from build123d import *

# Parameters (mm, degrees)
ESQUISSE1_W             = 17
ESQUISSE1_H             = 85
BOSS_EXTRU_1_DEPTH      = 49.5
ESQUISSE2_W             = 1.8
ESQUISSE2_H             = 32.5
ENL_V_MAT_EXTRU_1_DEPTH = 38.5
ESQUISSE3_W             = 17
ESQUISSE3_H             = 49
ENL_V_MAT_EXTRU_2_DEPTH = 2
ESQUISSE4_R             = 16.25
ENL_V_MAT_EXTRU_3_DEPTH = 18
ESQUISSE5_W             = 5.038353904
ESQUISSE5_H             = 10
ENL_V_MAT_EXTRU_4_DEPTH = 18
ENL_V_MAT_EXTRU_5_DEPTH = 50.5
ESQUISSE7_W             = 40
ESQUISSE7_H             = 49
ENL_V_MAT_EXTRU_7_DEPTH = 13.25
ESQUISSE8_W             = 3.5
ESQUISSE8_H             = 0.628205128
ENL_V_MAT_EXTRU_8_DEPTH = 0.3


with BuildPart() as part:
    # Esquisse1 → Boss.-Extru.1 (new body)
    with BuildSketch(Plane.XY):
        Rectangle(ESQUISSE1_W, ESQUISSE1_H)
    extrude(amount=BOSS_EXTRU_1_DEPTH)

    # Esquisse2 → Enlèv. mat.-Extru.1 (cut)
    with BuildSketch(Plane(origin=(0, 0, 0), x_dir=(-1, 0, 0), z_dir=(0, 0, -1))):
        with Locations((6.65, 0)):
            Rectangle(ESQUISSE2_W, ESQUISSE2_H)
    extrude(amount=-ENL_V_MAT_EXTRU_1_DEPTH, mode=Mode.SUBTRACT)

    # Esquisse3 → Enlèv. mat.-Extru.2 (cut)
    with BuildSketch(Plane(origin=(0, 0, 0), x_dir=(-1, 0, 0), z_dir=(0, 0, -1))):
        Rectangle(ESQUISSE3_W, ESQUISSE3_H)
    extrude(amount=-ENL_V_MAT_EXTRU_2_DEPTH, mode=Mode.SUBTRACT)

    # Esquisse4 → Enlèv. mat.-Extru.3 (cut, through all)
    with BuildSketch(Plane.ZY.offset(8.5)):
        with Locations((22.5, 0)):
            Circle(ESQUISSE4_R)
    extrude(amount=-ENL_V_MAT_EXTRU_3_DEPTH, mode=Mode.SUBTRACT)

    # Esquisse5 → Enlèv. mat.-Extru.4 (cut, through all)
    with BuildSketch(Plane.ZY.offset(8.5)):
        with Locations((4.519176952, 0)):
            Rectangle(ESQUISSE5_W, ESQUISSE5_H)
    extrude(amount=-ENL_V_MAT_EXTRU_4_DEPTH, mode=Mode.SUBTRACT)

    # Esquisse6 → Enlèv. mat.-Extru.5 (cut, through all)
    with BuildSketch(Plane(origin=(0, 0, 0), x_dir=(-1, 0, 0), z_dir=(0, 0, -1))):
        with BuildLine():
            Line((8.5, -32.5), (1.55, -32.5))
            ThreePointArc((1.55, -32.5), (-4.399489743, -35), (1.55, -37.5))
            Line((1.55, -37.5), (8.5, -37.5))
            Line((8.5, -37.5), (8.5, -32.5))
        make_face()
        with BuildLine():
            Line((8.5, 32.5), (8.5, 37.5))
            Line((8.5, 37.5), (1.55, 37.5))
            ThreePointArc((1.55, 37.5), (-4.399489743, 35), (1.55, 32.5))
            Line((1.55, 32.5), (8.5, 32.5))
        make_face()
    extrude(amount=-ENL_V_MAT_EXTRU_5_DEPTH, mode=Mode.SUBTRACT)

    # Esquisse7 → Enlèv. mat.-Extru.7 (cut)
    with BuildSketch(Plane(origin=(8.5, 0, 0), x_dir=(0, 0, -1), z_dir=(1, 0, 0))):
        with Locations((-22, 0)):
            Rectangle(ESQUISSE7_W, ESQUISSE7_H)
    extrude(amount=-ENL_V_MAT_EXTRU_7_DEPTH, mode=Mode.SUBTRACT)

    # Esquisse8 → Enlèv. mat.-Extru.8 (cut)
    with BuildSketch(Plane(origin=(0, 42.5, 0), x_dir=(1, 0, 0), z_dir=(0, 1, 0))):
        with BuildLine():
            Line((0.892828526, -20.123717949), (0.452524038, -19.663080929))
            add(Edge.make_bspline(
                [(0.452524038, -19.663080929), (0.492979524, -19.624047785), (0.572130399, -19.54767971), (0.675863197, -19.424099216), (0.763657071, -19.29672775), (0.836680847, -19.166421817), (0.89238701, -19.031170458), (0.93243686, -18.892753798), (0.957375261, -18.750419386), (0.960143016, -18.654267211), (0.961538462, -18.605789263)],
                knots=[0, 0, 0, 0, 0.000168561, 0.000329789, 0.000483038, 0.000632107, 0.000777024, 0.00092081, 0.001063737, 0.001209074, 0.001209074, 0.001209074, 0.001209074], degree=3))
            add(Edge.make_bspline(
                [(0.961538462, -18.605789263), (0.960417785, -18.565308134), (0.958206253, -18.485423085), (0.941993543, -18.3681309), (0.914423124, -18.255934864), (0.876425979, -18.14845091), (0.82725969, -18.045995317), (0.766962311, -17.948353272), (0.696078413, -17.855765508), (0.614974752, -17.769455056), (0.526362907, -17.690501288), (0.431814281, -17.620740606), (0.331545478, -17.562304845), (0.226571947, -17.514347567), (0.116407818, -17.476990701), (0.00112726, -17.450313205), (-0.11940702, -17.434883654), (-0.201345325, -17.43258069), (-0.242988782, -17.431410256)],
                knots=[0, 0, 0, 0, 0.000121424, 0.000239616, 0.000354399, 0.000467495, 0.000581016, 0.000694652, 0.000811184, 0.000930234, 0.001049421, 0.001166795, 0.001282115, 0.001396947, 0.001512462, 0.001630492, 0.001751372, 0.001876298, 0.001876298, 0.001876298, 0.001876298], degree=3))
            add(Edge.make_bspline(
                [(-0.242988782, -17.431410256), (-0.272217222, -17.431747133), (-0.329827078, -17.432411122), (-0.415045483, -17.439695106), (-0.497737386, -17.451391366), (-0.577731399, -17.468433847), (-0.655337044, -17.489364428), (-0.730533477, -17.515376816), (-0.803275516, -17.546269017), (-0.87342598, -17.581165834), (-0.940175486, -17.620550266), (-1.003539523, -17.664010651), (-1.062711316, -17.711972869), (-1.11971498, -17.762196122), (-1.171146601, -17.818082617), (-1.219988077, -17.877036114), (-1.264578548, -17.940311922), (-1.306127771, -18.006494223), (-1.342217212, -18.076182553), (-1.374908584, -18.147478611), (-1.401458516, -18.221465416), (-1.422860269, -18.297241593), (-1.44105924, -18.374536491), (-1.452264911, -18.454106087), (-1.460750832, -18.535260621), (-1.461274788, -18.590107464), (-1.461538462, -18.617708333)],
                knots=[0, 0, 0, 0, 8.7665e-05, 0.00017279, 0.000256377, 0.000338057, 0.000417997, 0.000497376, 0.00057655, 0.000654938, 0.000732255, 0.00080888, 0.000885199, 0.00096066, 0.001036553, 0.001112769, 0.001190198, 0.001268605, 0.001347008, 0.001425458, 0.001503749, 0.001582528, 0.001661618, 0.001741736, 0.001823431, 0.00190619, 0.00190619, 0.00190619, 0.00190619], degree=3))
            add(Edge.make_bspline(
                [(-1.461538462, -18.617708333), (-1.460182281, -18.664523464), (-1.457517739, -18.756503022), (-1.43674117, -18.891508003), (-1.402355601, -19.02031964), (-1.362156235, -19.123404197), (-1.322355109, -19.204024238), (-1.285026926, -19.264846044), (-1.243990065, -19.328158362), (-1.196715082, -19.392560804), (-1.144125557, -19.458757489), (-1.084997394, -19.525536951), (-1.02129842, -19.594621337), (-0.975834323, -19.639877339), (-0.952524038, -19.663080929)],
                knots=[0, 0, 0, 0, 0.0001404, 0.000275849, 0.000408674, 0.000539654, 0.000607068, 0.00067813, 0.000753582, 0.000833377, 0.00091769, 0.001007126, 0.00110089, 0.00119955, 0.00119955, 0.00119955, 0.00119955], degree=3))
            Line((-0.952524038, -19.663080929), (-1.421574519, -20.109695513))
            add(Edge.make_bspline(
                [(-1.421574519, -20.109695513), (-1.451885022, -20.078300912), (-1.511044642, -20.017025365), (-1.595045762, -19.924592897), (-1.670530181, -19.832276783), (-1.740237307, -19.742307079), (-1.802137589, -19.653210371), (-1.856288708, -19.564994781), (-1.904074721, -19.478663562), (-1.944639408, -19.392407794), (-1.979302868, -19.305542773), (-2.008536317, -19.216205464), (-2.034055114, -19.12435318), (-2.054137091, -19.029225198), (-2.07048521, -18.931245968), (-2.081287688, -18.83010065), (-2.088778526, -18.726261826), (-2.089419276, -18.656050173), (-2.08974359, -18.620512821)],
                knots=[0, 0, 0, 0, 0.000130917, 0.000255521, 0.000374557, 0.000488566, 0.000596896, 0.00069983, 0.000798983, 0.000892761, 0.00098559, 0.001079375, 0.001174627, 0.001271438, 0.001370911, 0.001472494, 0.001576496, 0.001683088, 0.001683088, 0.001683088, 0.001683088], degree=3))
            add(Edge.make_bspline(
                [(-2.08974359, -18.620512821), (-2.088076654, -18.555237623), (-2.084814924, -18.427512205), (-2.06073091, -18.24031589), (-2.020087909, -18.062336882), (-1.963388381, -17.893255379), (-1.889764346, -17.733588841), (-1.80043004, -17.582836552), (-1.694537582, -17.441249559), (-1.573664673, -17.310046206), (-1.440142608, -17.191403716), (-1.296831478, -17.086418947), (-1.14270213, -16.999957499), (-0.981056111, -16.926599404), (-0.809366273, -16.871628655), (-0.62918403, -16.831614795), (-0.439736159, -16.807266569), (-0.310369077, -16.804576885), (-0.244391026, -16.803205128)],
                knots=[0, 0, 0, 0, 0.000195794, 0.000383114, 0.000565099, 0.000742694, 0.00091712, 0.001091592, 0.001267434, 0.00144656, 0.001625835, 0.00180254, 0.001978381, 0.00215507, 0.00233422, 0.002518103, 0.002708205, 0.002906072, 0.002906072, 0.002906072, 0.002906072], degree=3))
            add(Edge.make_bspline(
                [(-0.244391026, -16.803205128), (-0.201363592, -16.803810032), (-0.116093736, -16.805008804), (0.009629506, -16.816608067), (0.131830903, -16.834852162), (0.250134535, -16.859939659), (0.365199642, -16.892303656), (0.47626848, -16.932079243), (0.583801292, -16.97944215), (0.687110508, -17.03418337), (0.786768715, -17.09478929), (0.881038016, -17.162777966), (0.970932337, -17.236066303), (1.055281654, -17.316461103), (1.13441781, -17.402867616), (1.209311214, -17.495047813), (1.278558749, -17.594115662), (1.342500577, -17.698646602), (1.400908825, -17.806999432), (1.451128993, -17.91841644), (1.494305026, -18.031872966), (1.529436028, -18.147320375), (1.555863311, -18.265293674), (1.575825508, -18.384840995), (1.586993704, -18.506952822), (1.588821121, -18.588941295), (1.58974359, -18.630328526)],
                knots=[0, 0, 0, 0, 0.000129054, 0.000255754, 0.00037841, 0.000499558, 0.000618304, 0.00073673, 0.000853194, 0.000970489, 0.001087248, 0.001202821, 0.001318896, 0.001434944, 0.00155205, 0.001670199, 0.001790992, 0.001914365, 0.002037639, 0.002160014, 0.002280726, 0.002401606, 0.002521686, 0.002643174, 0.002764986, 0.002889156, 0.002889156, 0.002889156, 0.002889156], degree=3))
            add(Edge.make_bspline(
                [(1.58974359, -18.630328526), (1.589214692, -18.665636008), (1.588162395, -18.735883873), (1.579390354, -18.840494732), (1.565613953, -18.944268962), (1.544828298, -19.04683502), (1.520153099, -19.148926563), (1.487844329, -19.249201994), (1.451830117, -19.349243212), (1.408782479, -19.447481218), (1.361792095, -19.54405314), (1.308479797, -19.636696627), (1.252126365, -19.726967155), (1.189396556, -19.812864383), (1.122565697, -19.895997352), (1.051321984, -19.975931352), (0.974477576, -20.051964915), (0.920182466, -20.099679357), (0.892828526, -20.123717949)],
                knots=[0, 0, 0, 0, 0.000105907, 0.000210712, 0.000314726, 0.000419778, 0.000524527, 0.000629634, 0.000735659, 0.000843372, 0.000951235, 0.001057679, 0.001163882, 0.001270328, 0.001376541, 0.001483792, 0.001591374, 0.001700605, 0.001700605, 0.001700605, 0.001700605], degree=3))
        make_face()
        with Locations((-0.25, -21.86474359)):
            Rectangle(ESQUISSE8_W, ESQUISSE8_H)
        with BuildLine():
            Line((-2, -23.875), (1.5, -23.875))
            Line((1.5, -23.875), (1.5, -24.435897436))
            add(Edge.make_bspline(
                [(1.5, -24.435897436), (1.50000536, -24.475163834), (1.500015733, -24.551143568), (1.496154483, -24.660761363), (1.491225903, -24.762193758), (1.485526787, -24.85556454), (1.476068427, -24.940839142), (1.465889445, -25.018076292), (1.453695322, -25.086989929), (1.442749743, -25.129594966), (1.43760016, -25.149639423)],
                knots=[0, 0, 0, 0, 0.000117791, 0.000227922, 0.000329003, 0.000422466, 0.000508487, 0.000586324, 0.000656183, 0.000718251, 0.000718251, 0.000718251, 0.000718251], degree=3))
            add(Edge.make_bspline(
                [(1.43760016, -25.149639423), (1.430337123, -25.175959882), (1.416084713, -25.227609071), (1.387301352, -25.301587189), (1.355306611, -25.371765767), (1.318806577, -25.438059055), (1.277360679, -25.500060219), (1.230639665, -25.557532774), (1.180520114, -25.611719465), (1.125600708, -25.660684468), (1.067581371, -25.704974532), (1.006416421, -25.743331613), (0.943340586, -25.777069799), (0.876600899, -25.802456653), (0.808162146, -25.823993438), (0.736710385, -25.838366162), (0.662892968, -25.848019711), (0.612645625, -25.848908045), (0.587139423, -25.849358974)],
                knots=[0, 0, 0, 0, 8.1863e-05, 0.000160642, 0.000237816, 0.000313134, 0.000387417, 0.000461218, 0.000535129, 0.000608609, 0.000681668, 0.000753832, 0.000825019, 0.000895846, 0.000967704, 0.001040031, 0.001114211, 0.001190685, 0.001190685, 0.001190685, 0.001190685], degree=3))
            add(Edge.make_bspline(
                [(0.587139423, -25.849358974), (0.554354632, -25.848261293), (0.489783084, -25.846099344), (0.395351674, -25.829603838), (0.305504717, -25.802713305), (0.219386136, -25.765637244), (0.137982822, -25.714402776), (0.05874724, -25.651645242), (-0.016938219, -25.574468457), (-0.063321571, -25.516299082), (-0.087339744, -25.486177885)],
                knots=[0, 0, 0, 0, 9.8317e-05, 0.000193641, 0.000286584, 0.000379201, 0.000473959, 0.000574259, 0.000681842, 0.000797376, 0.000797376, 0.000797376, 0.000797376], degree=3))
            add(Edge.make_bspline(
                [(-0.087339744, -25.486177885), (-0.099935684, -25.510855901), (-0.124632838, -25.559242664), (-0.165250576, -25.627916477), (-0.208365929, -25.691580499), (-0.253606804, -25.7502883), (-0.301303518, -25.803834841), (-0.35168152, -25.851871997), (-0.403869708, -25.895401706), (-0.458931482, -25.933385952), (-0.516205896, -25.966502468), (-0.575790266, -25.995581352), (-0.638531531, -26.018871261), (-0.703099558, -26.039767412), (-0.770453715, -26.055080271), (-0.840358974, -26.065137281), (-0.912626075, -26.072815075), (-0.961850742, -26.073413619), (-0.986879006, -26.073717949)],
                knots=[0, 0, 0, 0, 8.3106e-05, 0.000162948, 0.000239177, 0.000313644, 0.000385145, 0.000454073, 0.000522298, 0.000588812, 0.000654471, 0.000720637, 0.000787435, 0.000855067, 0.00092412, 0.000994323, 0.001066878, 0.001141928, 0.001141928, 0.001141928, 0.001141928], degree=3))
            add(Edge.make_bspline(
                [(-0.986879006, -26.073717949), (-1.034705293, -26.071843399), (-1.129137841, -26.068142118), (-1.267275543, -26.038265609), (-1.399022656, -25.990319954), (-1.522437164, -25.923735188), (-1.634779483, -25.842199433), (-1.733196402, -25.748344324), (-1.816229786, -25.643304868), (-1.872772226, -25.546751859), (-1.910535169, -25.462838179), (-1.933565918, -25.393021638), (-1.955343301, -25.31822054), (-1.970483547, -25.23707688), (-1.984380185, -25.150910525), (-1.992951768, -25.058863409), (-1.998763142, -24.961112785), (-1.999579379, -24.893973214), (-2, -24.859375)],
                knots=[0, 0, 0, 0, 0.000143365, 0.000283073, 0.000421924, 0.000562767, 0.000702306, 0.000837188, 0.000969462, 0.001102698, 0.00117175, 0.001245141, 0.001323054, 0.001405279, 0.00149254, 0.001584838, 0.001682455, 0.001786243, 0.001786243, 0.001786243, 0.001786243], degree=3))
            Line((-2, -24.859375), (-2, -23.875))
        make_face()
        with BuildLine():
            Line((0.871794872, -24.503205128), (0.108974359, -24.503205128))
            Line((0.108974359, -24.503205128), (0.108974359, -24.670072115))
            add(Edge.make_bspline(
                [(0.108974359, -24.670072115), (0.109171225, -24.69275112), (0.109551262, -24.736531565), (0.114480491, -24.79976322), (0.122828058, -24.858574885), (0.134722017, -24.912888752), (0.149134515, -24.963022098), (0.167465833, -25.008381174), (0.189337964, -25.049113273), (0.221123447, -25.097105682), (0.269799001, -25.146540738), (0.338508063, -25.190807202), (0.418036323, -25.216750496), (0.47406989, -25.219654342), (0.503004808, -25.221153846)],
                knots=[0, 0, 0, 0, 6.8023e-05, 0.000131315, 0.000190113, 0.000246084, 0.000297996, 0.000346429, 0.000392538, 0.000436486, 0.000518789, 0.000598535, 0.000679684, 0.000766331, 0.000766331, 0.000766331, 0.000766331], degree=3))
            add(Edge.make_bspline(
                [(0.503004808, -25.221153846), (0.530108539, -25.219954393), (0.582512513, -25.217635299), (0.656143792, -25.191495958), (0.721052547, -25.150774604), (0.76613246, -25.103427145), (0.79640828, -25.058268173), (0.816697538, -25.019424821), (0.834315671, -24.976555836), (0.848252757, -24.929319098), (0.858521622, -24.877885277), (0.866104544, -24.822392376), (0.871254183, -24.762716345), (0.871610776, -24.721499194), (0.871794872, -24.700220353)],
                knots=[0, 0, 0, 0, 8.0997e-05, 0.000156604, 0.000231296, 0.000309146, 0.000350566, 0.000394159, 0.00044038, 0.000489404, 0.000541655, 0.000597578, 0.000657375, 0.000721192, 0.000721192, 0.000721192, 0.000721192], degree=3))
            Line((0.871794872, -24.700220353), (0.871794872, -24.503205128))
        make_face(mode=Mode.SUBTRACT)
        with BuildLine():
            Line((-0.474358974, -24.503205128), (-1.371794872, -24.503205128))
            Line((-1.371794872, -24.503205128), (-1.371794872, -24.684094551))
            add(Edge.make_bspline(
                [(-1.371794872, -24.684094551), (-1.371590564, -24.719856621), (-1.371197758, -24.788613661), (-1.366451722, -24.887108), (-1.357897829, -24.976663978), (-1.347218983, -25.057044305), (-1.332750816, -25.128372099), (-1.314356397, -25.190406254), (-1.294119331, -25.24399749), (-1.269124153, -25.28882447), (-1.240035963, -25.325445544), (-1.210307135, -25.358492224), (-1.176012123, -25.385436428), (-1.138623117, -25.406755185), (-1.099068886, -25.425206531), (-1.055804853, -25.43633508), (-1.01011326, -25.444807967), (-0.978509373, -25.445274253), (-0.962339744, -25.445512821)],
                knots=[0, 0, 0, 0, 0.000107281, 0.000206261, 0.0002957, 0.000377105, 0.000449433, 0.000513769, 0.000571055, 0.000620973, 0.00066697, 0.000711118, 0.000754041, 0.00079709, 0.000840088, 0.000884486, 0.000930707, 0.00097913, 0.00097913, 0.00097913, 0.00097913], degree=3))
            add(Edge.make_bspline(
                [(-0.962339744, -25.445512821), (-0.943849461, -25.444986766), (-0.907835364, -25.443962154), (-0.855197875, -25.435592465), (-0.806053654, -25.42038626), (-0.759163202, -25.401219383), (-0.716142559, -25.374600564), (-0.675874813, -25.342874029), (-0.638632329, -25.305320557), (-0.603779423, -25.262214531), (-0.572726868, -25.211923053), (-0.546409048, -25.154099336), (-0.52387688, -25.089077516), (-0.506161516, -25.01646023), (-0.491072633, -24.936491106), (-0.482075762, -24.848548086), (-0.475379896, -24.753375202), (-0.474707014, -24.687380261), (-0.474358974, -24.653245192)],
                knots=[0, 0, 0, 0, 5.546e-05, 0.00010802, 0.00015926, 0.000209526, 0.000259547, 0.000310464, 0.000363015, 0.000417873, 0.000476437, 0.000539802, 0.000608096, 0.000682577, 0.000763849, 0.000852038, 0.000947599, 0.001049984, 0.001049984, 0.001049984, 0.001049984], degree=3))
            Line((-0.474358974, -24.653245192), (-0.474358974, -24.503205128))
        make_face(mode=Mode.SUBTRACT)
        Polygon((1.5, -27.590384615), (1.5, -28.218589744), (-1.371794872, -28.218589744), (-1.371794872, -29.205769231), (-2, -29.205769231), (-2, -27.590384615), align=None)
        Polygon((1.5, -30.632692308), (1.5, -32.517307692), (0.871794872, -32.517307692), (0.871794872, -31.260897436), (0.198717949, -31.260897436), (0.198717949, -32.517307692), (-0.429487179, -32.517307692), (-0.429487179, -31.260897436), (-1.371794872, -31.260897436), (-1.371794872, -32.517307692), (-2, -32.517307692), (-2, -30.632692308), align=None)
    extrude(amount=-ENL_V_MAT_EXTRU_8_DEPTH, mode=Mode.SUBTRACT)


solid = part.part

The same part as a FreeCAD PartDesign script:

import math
import FreeCAD as App
import Part
import Sketcher
from FreeCAD import Vector
Q = App.Units.Quantity


def add_polygon(sketch, points):
    """Adds a closed chain of lines whose ends are joined by coincident constraints."""
    first, n = sketch.GeometryCount, len(points)
    for a, b in zip(points, points[1:] + points[:1]):
        sketch.addGeometry(Part.LineSegment(App.Vector(*a, 0), App.Vector(*b, 0)), False)
    for i in range(n):
        sketch.addConstraint(Sketcher.Constraint("Coincident", first + i, 2, first + (i + 1) % n, 1))

doc = App.newDocument("Part")
params = doc.addObject("Spreadsheet::Sheet", "Params")
for row, (alias, value) in enumerate([
    ("sketch1_width", "17 mm"),
    ("sketch1_height", "85 mm"),
    ("pad1_length", "49.5 mm"),
    ("sketch2_width", "1.8 mm"),
    ("sketch2_height", "32.5 mm"),
    ("pocket1_length", "38.5 mm"),
    ("sketch3_width", "17 mm"),
    ("sketch3_height", "49 mm"),
    ("pocket2_length", "2 mm"),
    ("sketch4_diameter", "32.5 mm"),
    ("sketch5_width", "10 mm"),
    ("sketch6_radius", "3.5 mm"),
    ("sketch6_height", "5 mm"),
    ("sketch6_width", "6.95 mm"),
    ("sketch7_width", "49 mm"),
    ("sketch7_height", "40 mm"),
    ("pocket6_length", "13.25 mm"),
    ("sketch8_width", "3.5 mm"),
    ("sketch8_width2", "3.5 mm"),
    ("sketch8_width3", "3.5 mm"),
    ("pocket7_length", "0.3 mm"),
], start=1):
    params.set(f"A{row}", alias)
    params.set(f"B{row}", "=" + value)
    params.setAlias(f"B{row}", alias)

body = doc.addObject("PartDesign::Body", "Body")

sketch1 = doc.addObject("Sketcher::SketchObject", "Sketch")
body.addObject(sketch1)
sketch1.AttachmentSupport = (doc.XY_Plane, [""])
sketch1.MapMode = "FlatFace"
add_polygon(sketch1, [(-8, 42), (-8, -42), (8, -42), (8, 42)])
sketch1.addConstraint(Sketcher.Constraint("Vertical", 0))
sketch1.addConstraint(Sketcher.Constraint("Horizontal", 1))
sketch1.addConstraint(Sketcher.Constraint("Vertical", 2))
sketch1.addConstraint(Sketcher.Constraint("Horizontal", 3))
sketch1.addConstraint(Sketcher.Constraint("Symmetric", 0, 2, 2, 2, -1, 1))
sketch1.addConstraint(Sketcher.Constraint("DistanceX", 1, 1, 1, 2, Q("17 mm")))
sketch1.addConstraint(Sketcher.Constraint("DistanceY", 0, 2, 0, 1, Q("85 mm")))
sketch1.setExpression("Constraints[9]", "Params.sketch1_width")
sketch1.setExpression("Constraints[10]", "Params.sketch1_height")
pad1 = doc.addObject("PartDesign::Pad", "Pad")
body.addObject(pad1)
pad1.Profile = sketch1
pad1.setExpression("Length", "Params.pad1_length")

sketch2 = doc.addObject("Sketcher::SketchObject", "Sketch001")
body.addObject(sketch2)
sketch2.AttachmentSupport = (doc.XY_Plane, [""])
sketch2.MapMode = "FlatFace"
add_polygon(sketch2, [(-5.8, 16.2), (-5.8, -16.2), (-7.5, -16.2), (-7.5, 16.2)])
sketch2.addConstraint(Sketcher.Constraint("Vertical", 0))
sketch2.addConstraint(Sketcher.Constraint("Horizontal", 1))
sketch2.addConstraint(Sketcher.Constraint("Vertical", 2))
sketch2.addConstraint(Sketcher.Constraint("Horizontal", 3))
sketch2.addConstraint(Sketcher.Constraint("DistanceX", 1, 2, 1, 1, Q("1.8 mm")))
sketch2.addConstraint(Sketcher.Constraint("DistanceY", 0, 2, 0, 1, Q("32.5 mm")))
sketch2.addConstraint(Sketcher.Constraint("DistanceX", 0, 2, -1, 1, Q("5.75 mm")))
sketch2.addConstraint(Sketcher.Constraint("DistanceY", 0, 2, -1, 1, Q("16.25 mm")))
sketch2.setExpression("Constraints[8]", "Params.sketch2_width")
sketch2.setExpression("Constraints[9]", "Params.sketch2_height")
pocket1 = doc.addObject("PartDesign::Pocket", "Pocket")
body.addObject(pocket1)
pocket1.Profile = sketch2
pocket1.setExpression("Length", "Params.pocket1_length")
pocket1.Reversed = True

sketch3 = doc.addObject("Sketcher::SketchObject", "Sketch002")
body.addObject(sketch3)
sketch3.AttachmentSupport = (doc.XY_Plane, [""])
sketch3.MapMode = "FlatFace"
add_polygon(sketch3, [(8, 24), (8, -24), (-8, -24), (-8, 24)])
sketch3.addConstraint(Sketcher.Constraint("Vertical", 0))
sketch3.addConstraint(Sketcher.Constraint("Horizontal", 1))
sketch3.addConstraint(Sketcher.Constraint("Vertical", 2))
sketch3.addConstraint(Sketcher.Constraint("Horizontal", 3))
sketch3.addConstraint(Sketcher.Constraint("Symmetric", 0, 2, 2, 2, -1, 1))
sketch3.addConstraint(Sketcher.Constraint("DistanceX", 1, 2, 1, 1, Q("17 mm")))
sketch3.addConstraint(Sketcher.Constraint("DistanceY", 0, 2, 0, 1, Q("49 mm")))
sketch3.setExpression("Constraints[9]", "Params.sketch3_width")
sketch3.setExpression("Constraints[10]", "Params.sketch3_height")
pocket2 = doc.addObject("PartDesign::Pocket", "Pocket001")
body.addObject(pocket2)
pocket2.Profile = sketch3
pocket2.setExpression("Length", "Params.pocket2_length")
pocket2.Reversed = True

sketch4 = doc.addObject("Sketcher::SketchObject", "Sketch003")
body.addObject(sketch4)
sketch4.AttachmentSupport = (doc.YZ_Plane, [""])
sketch4.MapMode = "FlatFace"
sketch4.AttachmentOffset = App.Placement(Vector(0, 0, -8.5), App.Rotation())
sketch4.addGeometry(Part.Circle(Vector(0, 22, 0), Vector(0, 0, 1), 16), False)
sketch4.addConstraint(Sketcher.Constraint("PointOnObject", 0, 3, -2))
sketch4.addConstraint(Sketcher.Constraint("Diameter", 0, Q("32.5 mm")))
sketch4.addConstraint(Sketcher.Constraint("DistanceY", -1, 1, 0, 3, Q("22.5 mm")))
sketch4.setExpression("Constraints[1]", "Params.sketch4_diameter")
pocket3 = doc.addObject("PartDesign::Pocket", "Pocket002")
body.addObject(pocket3)
pocket3.Profile = sketch4
pocket3.Type = "ThroughAll"
pocket3.Reversed = True

sketch5 = doc.addObject("Sketcher::SketchObject", "Sketch004")
body.addObject(sketch5)
sketch5.AttachmentSupport = (doc.YZ_Plane, [""])
sketch5.MapMode = "FlatFace"
sketch5.AttachmentOffset = App.Placement(Vector(0, 0, -8.5), App.Rotation())
add_polygon(sketch5, [(5, 2), (-5, 2), (-5, 7), (5, 7)])
sketch5.addConstraint(Sketcher.Constraint("Horizontal", 0))
sketch5.addConstraint(Sketcher.Constraint("Vertical", 1))
sketch5.addConstraint(Sketcher.Constraint("Horizontal", 2))
sketch5.addConstraint(Sketcher.Constraint("Vertical", 3))
sketch5.addConstraint(Sketcher.Constraint("DistanceX", 0, 2, 0, 1, Q("10 mm")))
sketch5.addConstraint(Sketcher.Constraint("DistanceX", 0, 2, -1, 1, Q("5 mm")))
sketch5.addConstraint(Sketcher.Constraint("DistanceY", -1, 1, 0, 2, Q("2 mm")))
sketch5.addConstraint(Sketcher.Constraint("DistanceY", 1, 1, 1, 2, Q("5.038354 mm")))
sketch5.setExpression("Constraints[8]", "Params.sketch5_width")
pocket4 = doc.addObject("PartDesign::Pocket", "Pocket003")
body.addObject(pocket4)
pocket4.Profile = sketch5
pocket4.Type = "ThroughAll"
pocket4.Reversed = True

sketch6 = doc.addObject("Sketcher::SketchObject", "Sketch005")
body.addObject(sketch6)
sketch6.AttachmentSupport = (doc.XY_Plane, [""])
sketch6.MapMode = "FlatFace"
sketch6.addGeometry(Part.LineSegment(Vector(-8.5, -32.5, 0), Vector(-1.6, -32.5, 0)), False)
sketch6.addGeometry(Part.ArcOfCircle(Part.Circle(Vector(0.9, -35, 0), Vector(0, 0, 1), 3.5), math.radians(-134), math.radians(134)), False)
sketch6.addGeometry(Part.LineSegment(Vector(-1.6, -37.5, 0), Vector(-8.5, -37.5, 0)), False)
sketch6.addGeometry(Part.LineSegment(Vector(-8.5, -37.5, 0), Vector(-8.5, -32.5, 0)), False)
sketch6.addGeometry(Part.LineSegment(Vector(-8.5, 32.5, 0), Vector(-8.5, 37.5, 0)), False)
sketch6.addGeometry(Part.LineSegment(Vector(-8.5, 37.5, 0), Vector(-1.6, 37.5, 0)), False)
sketch6.addGeometry(Part.ArcOfCircle(Part.Circle(Vector(0.9, 35, 0), Vector(0, 0, 1), 3.5), math.radians(-134), math.radians(134)), False)
sketch6.addGeometry(Part.LineSegment(Vector(-1.6, 32.5, 0), Vector(-8.5, 32.5, 0)), False)
sketch6.addConstraint(Sketcher.Constraint("Coincident", 0, 2, 1, 2))
sketch6.addConstraint(Sketcher.Constraint("Coincident", 1, 1, 2, 1))
sketch6.addConstraint(Sketcher.Constraint("Coincident", 2, 2, 3, 1))
sketch6.addConstraint(Sketcher.Constraint("Coincident", 3, 2, 0, 1))
sketch6.addConstraint(Sketcher.Constraint("Coincident", 4, 2, 5, 1))
sketch6.addConstraint(Sketcher.Constraint("Coincident", 5, 2, 6, 2))
sketch6.addConstraint(Sketcher.Constraint("Coincident", 6, 1, 7, 1))
sketch6.addConstraint(Sketcher.Constraint("Coincident", 7, 2, 4, 1))
sketch6.addConstraint(Sketcher.Constraint("Horizontal", 0))
sketch6.addConstraint(Sketcher.Constraint("Horizontal", 2))
sketch6.addConstraint(Sketcher.Constraint("Vertical", 3))
sketch6.addConstraint(Sketcher.Constraint("Vertical", 4))
sketch6.addConstraint(Sketcher.Constraint("Horizontal", 5))
sketch6.addConstraint(Sketcher.Constraint("Horizontal", 7))
sketch6.addConstraint(Sketcher.Constraint("Equal", 1, 6))
sketch6.addConstraint(Sketcher.Constraint("Symmetric", 1, 3, 6, 3, -1))
sketch6.addConstraint(Sketcher.Constraint("Symmetric", 2, 2, 4, 2, -1))
sketch6.addConstraint(Sketcher.Constraint("Vertical", 0, 2, 1, 1))
sketch6.addConstraint(Sketcher.Constraint("Vertical", 5, 2, 6, 1))
sketch6.addConstraint(Sketcher.Constraint("Radius", 1, Q("3.5 mm")))
sketch6.addConstraint(Sketcher.Constraint("DistanceY", 3, 1, 3, 2, Q("5 mm")))
sketch6.addConstraint(Sketcher.Constraint("DistanceY", 1, 3, -1, 1, Q("35 mm")))
sketch6.addConstraint(Sketcher.Constraint("DistanceX", 0, 1, 0, 2, Q("6.95 mm")))
sketch6.addConstraint(Sketcher.Constraint("DistanceX", 2, 2, -1, 1, Q("8.5 mm")))
sketch6.setExpression("Constraints[19]", "Params.sketch6_radius")
sketch6.setExpression("Constraints[20]", "Params.sketch6_height")
sketch6.setExpression("Constraints[22]", "Params.sketch6_width")
pocket5 = doc.addObject("PartDesign::Pocket", "Pocket004")
body.addObject(pocket5)
pocket5.Profile = sketch6
pocket5.Type = "ThroughAll"
pocket5.Reversed = True

sketch7 = doc.addObject("Sketcher::SketchObject", "Sketch006")
body.addObject(sketch7)
sketch7.AttachmentSupport = (doc.YZ_Plane, [""])
sketch7.MapMode = "FlatFace"
sketch7.AttachmentOffset = App.Placement(Vector(0, 0, 8.5), App.Rotation())
add_polygon(sketch7, [(24, 42), (-24, 42), (-24, 2), (24, 2)])
sketch7.addConstraint(Sketcher.Constraint("Horizontal", 0))
sketch7.addConstraint(Sketcher.Constraint("Vertical", 1))
sketch7.addConstraint(Sketcher.Constraint("Horizontal", 2))
sketch7.addConstraint(Sketcher.Constraint("Vertical", 3))
sketch7.addConstraint(Sketcher.Constraint("DistanceX", 0, 2, 0, 1, Q("49 mm")))
sketch7.addConstraint(Sketcher.Constraint("DistanceY", 1, 2, 1, 1, Q("40 mm")))
sketch7.addConstraint(Sketcher.Constraint("DistanceY", -1, 1, 0, 2, Q("42 mm")))
sketch7.addConstraint(Sketcher.Constraint("DistanceX", 0, 2, -1, 1, Q("24.5 mm")))
sketch7.setExpression("Constraints[8]", "Params.sketch7_width")
sketch7.setExpression("Constraints[9]", "Params.sketch7_height")
pocket6 = doc.addObject("PartDesign::Pocket", "Pocket005")
body.addObject(pocket6)
pocket6.Profile = sketch7
pocket6.setExpression("Length", "Params.pocket6_length")

sketch8 = doc.addObject("Sketcher::SketchObject", "Sketch007")
body.addObject(sketch8)
sketch8.AttachmentSupport = (doc.XZ_Plane, [""])
sketch8.MapMode = "FlatFace"
sketch8.AttachmentOffset = App.Placement(Vector(0, 0, -42.5), App.Rotation())
sketch8.addGeometry(Part.LineSegment(Vector(0.452524, 19.663081, 0), Vector(0.892829, 20.123718, 0)), False)
sketch8.addGeometry(Part.BSplineCurve([Vector(1.589744, 18.630329, 0), Vector(1.589215, 18.665636, 0), Vector(1.588162, 18.735884, 0), Vector(1.57939, 18.840495, 0), Vector(1.565614, 18.944269, 0), Vector(1.544828, 19.046835, 0), Vector(1.520153, 19.148927, 0), Vector(1.487844, 19.249202, 0), Vector(1.45183, 19.349243, 0), Vector(1.408782, 19.447481, 0), Vector(1.361792, 19.544053, 0), Vector(1.30848, 19.636697, 0), Vector(1.252126, 19.726967, 0), Vector(1.189397, 19.812864, 0), Vector(1.122566, 19.895997, 0), Vector(1.051322, 19.975931, 0), Vector(0.974478, 20.051965, 0), Vector(0.920182, 20.099679, 0), Vector(0.892829, 20.123718, 0)], [4, 1, 1, 1, 1, 1, 1, 1, 1, 1, 1, 1, 1, 1, 1, 1, 4], [0, 0.000105907, 0.000210712, 0.000314726, 0.000419778, 0.000524527, 0.000629634, 0.000735659, 0.000843372, 0.000951235, 0.001057679, 0.001163882, 0.001270328, 0.001376541, 0.001483792, 0.001591374, 0.001700605], False, 3, [1, 1, 1, 1, 1, 1, 1, 1, 1, 1, 1, 1, 1, 1, 1, 1, 1, 1, 1], False), False)
sketch8.addGeometry(Part.BSplineCurve([Vector(-0.244391, 16.803205, 0), Vector(-0.201364, 16.80381, 0), Vector(-0.116094, 16.805009, 0), Vector(0.00963, 16.816608, 0), Vector(0.131831, 16.834852, 0), Vector(0.250135, 16.85994, 0), Vector(0.3652, 16.892304, 0), Vector(0.476268, 16.932079, 0), Vector(0.583801, 16.979442, 0), Vector(0.687111, 17.034183, 0), Vector(0.786769, 17.094789, 0), Vector(0.881038, 17.162778, 0), Vector(0.970932, 17.236066, 0), Vector(1.055282, 17.316461, 0), Vector(1.134418, 17.402868, 0), Vector(1.209311, 17.495048, 0), Vector(1.278559, 17.594116, 0), Vector(1.342501, 17.698647, 0), Vector(1.400909, 17.806999, 0), Vector(1.451129, 17.918416, 0), Vector(1.494305, 18.031873, 0), Vector(1.529436, 18.14732, 0), Vector(1.555863, 18.265294, 0), Vector(1.575826, 18.384841, 0), Vector(1.586994, 18.506953, 0), Vector(1.588821, 18.588941, 0), Vector(1.589744, 18.630329, 0)], [4, 1, 1, 1, 1, 1, 1, 1, 1, 1, 1, 1, 1, 1, 1, 1, 1, 1, 1, 1, 1, 1, 1, 1, 4], [0, 0.000129054, 0.000255754, 0.00037841, 0.000499558, 0.000618304, 0.00073673, 0.000853194, 0.000970489, 0.001087248, 0.001202821, 0.001318896, 0.001434944, 0.00155205, 0.001670199, 0.001790992, 0.001914365, 0.002037639, 0.002160014, 0.002280726, 0.002401606, 0.002521686, 0.002643174, 0.002764986, 0.002889156], False, 3, [1, 1, 1, 1, 1, 1, 1, 1, 1, 1, 1, 1, 1, 1, 1, 1, 1, 1, 1, 1, 1, 1, 1, 1, 1, 1, 1], False), False)
sketch8.addGeometry(Part.BSplineCurve([Vector(-2.089744, 18.620513, 0), Vector(-2.088077, 18.555238, 0), Vector(-2.084815, 18.427512, 0), Vector(-2.060731, 18.240316, 0), Vector(-2.020088, 18.062337, 0), Vector(-1.963388, 17.893255, 0), Vector(-1.889764, 17.733589, 0), Vector(-1.80043, 17.582837, 0), Vector(-1.694538, 17.44125, 0), Vector(-1.573665, 17.310046, 0), Vector(-1.440143, 17.191404, 0), Vector(-1.296831, 17.086419, 0), Vector(-1.142702, 16.999957, 0), Vector(-0.981056, 16.926599, 0), Vector(-0.809366, 16.871629, 0), Vector(-0.629184, 16.831615, 0), Vector(-0.439736, 16.807267, 0), Vector(-0.310369, 16.804577, 0), Vector(-0.244391, 16.803205, 0)], [4, 1, 1, 1, 1, 1, 1, 1, 1, 1, 1, 1, 1, 1, 1, 1, 4], [0, 0.000195794, 0.000383114, 0.000565099, 0.000742694, 0.00091712, 0.001091592, 0.001267434, 0.00144656, 0.001625835, 0.00180254, 0.001978381, 0.00215507, 0.00233422, 0.002518103, 0.002708205, 0.002906072], False, 3, [1, 1, 1, 1, 1, 1, 1, 1, 1, 1, 1, 1, 1, 1, 1, 1, 1, 1, 1], False), False)
sketch8.addGeometry(Part.BSplineCurve([Vector(-1.421575, 20.109696, 0), Vector(-1.451885, 20.078301, 0), Vector(-1.511045, 20.017025, 0), Vector(-1.595046, 19.924593, 0), Vector(-1.67053, 19.832277, 0), Vector(-1.740237, 19.742307, 0), Vector(-1.802138, 19.65321, 0), Vector(-1.856289, 19.564995, 0), Vector(-1.904075, 19.478664, 0), Vector(-1.944639, 19.392408, 0), Vector(-1.979303, 19.305543, 0), Vector(-2.008536, 19.216205, 0), Vector(-2.034055, 19.124353, 0), Vector(-2.054137, 19.029225, 0), Vector(-2.070485, 18.931246, 0), Vector(-2.081288, 18.830101, 0), Vector(-2.088779, 18.726262, 0), Vector(-2.089419, 18.65605, 0), Vector(-2.089744, 18.620513, 0)], [4, 1, 1, 1, 1, 1, 1, 1, 1, 1, 1, 1, 1, 1, 1, 1, 4], [0, 0.000130917, 0.000255521, 0.000374557, 0.000488566, 0.000596896, 0.00069983, 0.000798983, 0.000892761, 0.00098559, 0.001079375, 0.001174627, 0.001271438, 0.001370911, 0.001472494, 0.001576496, 0.001683088], False, 3, [1, 1, 1, 1, 1, 1, 1, 1, 1, 1, 1, 1, 1, 1, 1, 1, 1, 1, 1], False), False)
sketch8.addGeometry(Part.LineSegment(Vector(-1.421575, 20.109696, 0), Vector(-0.952524, 19.663081, 0)), False)
sketch8.addGeometry(Part.BSplineCurve([Vector(-1.461538, 18.617708, 0), Vector(-1.460182, 18.664523, 0), Vector(-1.457518, 18.756503, 0), Vector(-1.436741, 18.891508, 0), Vector(-1.402356, 19.02032, 0), Vector(-1.362156, 19.123404, 0), Vector(-1.322355, 19.204024, 0), Vector(-1.285027, 19.264846, 0), Vector(-1.24399, 19.328158, 0), Vector(-1.196715, 19.392561, 0), Vector(-1.144126, 19.458757, 0), Vector(-1.084997, 19.525537, 0), Vector(-1.021298, 19.594621, 0), Vector(-0.975834, 19.639877, 0), Vector(-0.952524, 19.663081, 0)], [4, 1, 1, 1, 1, 1, 1, 1, 1, 1, 1, 1, 4], [0, 0.0001404, 0.000275849, 0.000408674, 0.000539654, 0.000607068, 0.00067813, 0.000753582, 0.000833377, 0.00091769, 0.001007126, 0.00110089, 0.00119955], False, 3, [1, 1, 1, 1, 1, 1, 1, 1, 1, 1, 1, 1, 1, 1, 1], False), False)
sketch8.addGeometry(Part.BSplineCurve([Vector(-0.242989, 17.43141, 0), Vector(-0.272217, 17.431747, 0), Vector(-0.329827, 17.432411, 0), Vector(-0.415045, 17.439695, 0), Vector(-0.497737, 17.451391, 0), Vector(-0.577731, 17.468434, 0), Vector(-0.655337, 17.489364, 0), Vector(-0.730533, 17.515377, 0), Vector(-0.803276, 17.546269, 0), Vector(-0.873426, 17.581166, 0), Vector(-0.940175, 17.62055, 0), Vector(-1.00354, 17.664011, 0), Vector(-1.062711, 17.711973, 0), Vector(-1.119715, 17.762196, 0), Vector(-1.171147, 17.818083, 0), Vector(-1.219988, 17.877036, 0), Vector(-1.264579, 17.940312, 0), Vector(-1.306128, 18.006494, 0), Vector(-1.342217, 18.076183, 0), Vector(-1.374909, 18.147479, 0), Vector(-1.401459, 18.221465, 0), Vector(-1.42286, 18.297242, 0), Vector(-1.441059, 18.374536, 0), Vector(-1.452265, 18.454106, 0), Vector(-1.460751, 18.535261, 0), Vector(-1.461275, 18.590107, 0), Vector(-1.461538, 18.617708, 0)], [4, 1, 1, 1, 1, 1, 1, 1, 1, 1, 1, 1, 1, 1, 1, 1, 1, 1, 1, 1, 1, 1, 1, 1, 4], [0, 0.000087665, 0.00017279, 0.000256377, 0.000338057, 0.000417997, 0.000497376, 0.00057655, 0.000654938, 0.000732255, 0.00080888, 0.000885199, 0.00096066, 0.001036553, 0.001112769, 0.001190198, 0.001268605, 0.001347008, 0.001425458, 0.001503749, 0.001582528, 0.001661618, 0.001741736, 0.001823431, 0.00190619], False, 3, [1, 1, 1, 1, 1, 1, 1, 1, 1, 1, 1, 1, 1, 1, 1, 1, 1, 1, 1, 1, 1, 1, 1, 1, 1, 1, 1], False), False)
sketch8.addGeometry(Part.BSplineCurve([Vector(0.961538, 18.605789, 0), Vector(0.960418, 18.565308, 0), Vector(0.958206, 18.485423, 0), Vector(0.941994, 18.368131, 0), Vector(0.914423, 18.255935, 0), Vector(0.876426, 18.148451, 0), Vector(0.82726, 18.045995, 0), Vector(0.766962, 17.948353, 0), Vector(0.696078, 17.855766, 0), Vector(0.614975, 17.769455, 0), Vector(0.526363, 17.690501, 0), Vector(0.431814, 17.620741, 0), Vector(0.331545, 17.562305, 0), Vector(0.226572, 17.514348, 0), Vector(0.116408, 17.476991, 0), Vector(0.001127, 17.450313, 0), Vector(-0.119407, 17.434884, 0), Vector(-0.201345, 17.432581, 0), Vector(-0.242989, 17.43141, 0)], [4, 1, 1, 1, 1, 1, 1, 1, 1, 1, 1, 1, 1, 1, 1, 1, 4], [0, 0.000121424, 0.000239616, 0.000354399, 0.000467495, 0.000581016, 0.000694652, 0.000811184, 0.000930234, 0.001049421, 0.001166795, 0.001282115, 0.001396947, 0.001512462, 0.001630492, 0.001751372, 0.001876298], False, 3, [1, 1, 1, 1, 1, 1, 1, 1, 1, 1, 1, 1, 1, 1, 1, 1, 1, 1, 1], False), False)
sketch8.addGeometry(Part.BSplineCurve([Vector(0.452524, 19.663081, 0), Vector(0.49298, 19.624048, 0), Vector(0.57213, 19.54768, 0), Vector(0.675863, 19.424099, 0), Vector(0.763657, 19.296728, 0), Vector(0.836681, 19.166422, 0), Vector(0.892387, 19.03117, 0), Vector(0.932437, 18.892754, 0), Vector(0.957375, 18.750419, 0), Vector(0.960143, 18.654267, 0), Vector(0.961538, 18.605789, 0)], [4, 1, 1, 1, 1, 1, 1, 1, 4], [0, 0.000168561, 0.000329789, 0.000483038, 0.000632107, 0.000777024, 0.00092081, 0.001063737, 0.001209074], False, 3, [1, 1, 1, 1, 1, 1, 1, 1, 1, 1, 1], False), False)
add_polygon(sketch8, [(-2, 21.550641), (-2, 22.178846), (1.5, 22.178846), (1.5, 21.550641)])
sketch8.addGeometry(Part.LineSegment(Vector(1.5, 23.875, 0), Vector(-2, 23.875, 0)), False)
sketch8.addGeometry(Part.LineSegment(Vector(-2, 23.875, 0), Vector(-2, 24.859375, 0)), False)
sketch8.addGeometry(Part.BSplineCurve([Vector(-0.986879, 26.073718, 0), Vector(-1.034705, 26.071843, 0), Vector(-1.129138, 26.068142, 0), Vector(-1.267276, 26.038266, 0), Vector(-1.399023, 25.99032, 0), Vector(-1.522437, 25.923735, 0), Vector(-1.634779, 25.842199, 0), Vector(-1.733196, 25.748344, 0), Vector(-1.81623, 25.643305, 0), Vector(-1.872772, 25.546752, 0), Vector(-1.910535, 25.462838, 0), Vector(-1.933566, 25.393022, 0), Vector(-1.955343, 25.318221, 0), Vector(-1.970484, 25.237077, 0), Vector(-1.98438, 25.150911, 0), Vector(-1.992952, 25.058863, 0), Vector(-1.998763, 24.961113, 0), Vector(-1.999579, 24.893973, 0), Vector(-2, 24.859375, 0)], [4, 1, 1, 1, 1, 1, 1, 1, 1, 1, 1, 1, 1, 1, 1, 1, 4], [0, 0.000143365, 0.000283073, 0.000421924, 0.000562767, 0.000702306, 0.000837188, 0.000969462, 0.001102698, 0.00117175, 0.001245141, 0.001323054, 0.001405279, 0.00149254, 0.001584838, 0.001682455, 0.001786243], False, 3, [1, 1, 1, 1, 1, 1, 1, 1, 1, 1, 1, 1, 1, 1, 1, 1, 1, 1, 1], False), False)
sketch8.addGeometry(Part.BSplineCurve([Vector(-0.08734, 25.486178, 0), Vector(-0.099936, 25.510856, 0), Vector(-0.124633, 25.559243, 0), Vector(-0.165251, 25.627916, 0), Vector(-0.208366, 25.69158, 0), Vector(-0.253607, 25.750288, 0), Vector(-0.301304, 25.803835, 0), Vector(-0.351682, 25.851872, 0), Vector(-0.40387, 25.895402, 0), Vector(-0.458931, 25.933386, 0), Vector(-0.516206, 25.966502, 0), Vector(-0.57579, 25.995581, 0), Vector(-0.638532, 26.018871, 0), Vector(-0.7031, 26.039767, 0), Vector(-0.770454, 26.05508, 0), Vector(-0.840359, 26.065137, 0), Vector(-0.912626, 26.072815, 0), Vector(-0.961851, 26.073414, 0), Vector(-0.986879, 26.073718, 0)], [4, 1, 1, 1, 1, 1, 1, 1, 1, 1, 1, 1, 1, 1, 1, 1, 4], [0, 0.000083106, 0.000162948, 0.000239177, 0.000313644, 0.000385145, 0.000454073, 0.000522298, 0.000588812, 0.000654471, 0.000720637, 0.000787435, 0.000855067, 0.00092412, 0.000994323, 0.001066878, 0.001141928], False, 3, [1, 1, 1, 1, 1, 1, 1, 1, 1, 1, 1, 1, 1, 1, 1, 1, 1, 1, 1], False), False)
sketch8.addGeometry(Part.BSplineCurve([Vector(0.587139, 25.849359, 0), Vector(0.554355, 25.848261, 0), Vector(0.489783, 25.846099, 0), Vector(0.395352, 25.829604, 0), Vector(0.305505, 25.802713, 0), Vector(0.219386, 25.765637, 0), Vector(0.137983, 25.714403, 0), Vector(0.058747, 25.651645, 0), Vector(-0.016938, 25.574468, 0), Vector(-0.063322, 25.516299, 0), Vector(-0.08734, 25.486178, 0)], [4, 1, 1, 1, 1, 1, 1, 1, 4], [0, 0.000098317, 0.000193641, 0.000286584, 0.000379201, 0.000473959, 0.000574259, 0.000681842, 0.000797376], False, 3, [1, 1, 1, 1, 1, 1, 1, 1, 1, 1, 1], False), False)
sketch8.addGeometry(Part.BSplineCurve([Vector(1.4376, 25.149639, 0), Vector(1.430337, 25.17596, 0), Vector(1.416085, 25.227609, 0), Vector(1.387301, 25.301587, 0), Vector(1.355307, 25.371766, 0), Vector(1.318807, 25.438059, 0), Vector(1.277361, 25.50006, 0), Vector(1.23064, 25.557533, 0), Vector(1.18052, 25.611719, 0), Vector(1.125601, 25.660684, 0), Vector(1.067581, 25.704975, 0), Vector(1.006416, 25.743332, 0), Vector(0.943341, 25.77707, 0), Vector(0.876601, 25.802457, 0), Vector(0.808162, 25.823993, 0), Vector(0.73671, 25.838366, 0), Vector(0.662893, 25.84802, 0), Vector(0.612646, 25.848908, 0), Vector(0.587139, 25.849359, 0)], [4, 1, 1, 1, 1, 1, 1, 1, 1, 1, 1, 1, 1, 1, 1, 1, 4], [0, 0.000081863, 0.000160642, 0.000237816, 0.000313134, 0.000387417, 0.000461218, 0.000535129, 0.000608609, 0.000681668, 0.000753832, 0.000825019, 0.000895846, 0.000967704, 0.001040031, 0.001114211, 0.001190685], False, 3, [1, 1, 1, 1, 1, 1, 1, 1, 1, 1, 1, 1, 1, 1, 1, 1, 1, 1, 1], False), False)
sketch8.addGeometry(Part.BSplineCurve([Vector(1.5, 24.435897, 0), Vector(1.500005, 24.475164, 0), Vector(1.500016, 24.551144, 0), Vector(1.496154, 24.660761, 0), Vector(1.491226, 24.762194, 0), Vector(1.485527, 24.855565, 0), Vector(1.476068, 24.940839, 0), Vector(1.465889, 25.018076, 0), Vector(1.453695, 25.08699, 0), Vector(1.44275, 25.129595, 0), Vector(1.4376, 25.149639, 0)], [4, 1, 1, 1, 1, 1, 1, 1, 4], [0, 0.000117791, 0.000227922, 0.000329003, 0.000422466, 0.000508487, 0.000586324, 0.000656183, 0.000718251], False, 3, [1, 1, 1, 1, 1, 1, 1, 1, 1, 1, 1], False), False)
sketch8.addGeometry(Part.LineSegment(Vector(1.5, 24.435897, 0), Vector(1.5, 23.875, 0)), False)
sketch8.addGeometry(Part.LineSegment(Vector(0.871795, 24.503205, 0), Vector(0.871795, 24.70022, 0)), False)
sketch8.addGeometry(Part.BSplineCurve([Vector(0.503005, 25.221154, 0), Vector(0.530109, 25.219954, 0), Vector(0.582513, 25.217635, 0), Vector(0.656144, 25.191496, 0), Vector(0.721053, 25.150775, 0), Vector(0.766132, 25.103427, 0), Vector(0.796408, 25.058268, 0), Vector(0.816698, 25.019425, 0), Vector(0.834316, 24.976556, 0), Vector(0.848253, 24.929319, 0), Vector(0.858522, 24.877885, 0), Vector(0.866105, 24.822392, 0), Vector(0.871254, 24.762716, 0), Vector(0.871611, 24.721499, 0), Vector(0.871795, 24.70022, 0)], [4, 1, 1, 1, 1, 1, 1, 1, 1, 1, 1, 1, 4], [0, 0.000080997, 0.000156604, 0.000231296, 0.000309146, 0.000350566, 0.000394159, 0.00044038, 0.000489404, 0.000541655, 0.000597578, 0.000657375, 0.000721192], False, 3, [1, 1, 1, 1, 1, 1, 1, 1, 1, 1, 1, 1, 1, 1, 1], False), False)
sketch8.addGeometry(Part.BSplineCurve([Vector(0.108974, 24.670072, 0), Vector(0.109171, 24.692751, 0), Vector(0.109551, 24.736532, 0), Vector(0.11448, 24.799763, 0), Vector(0.122828, 24.858575, 0), Vector(0.134722, 24.912889, 0), Vector(0.149135, 24.963022, 0), Vector(0.167466, 25.008381, 0), Vector(0.189338, 25.049113, 0), Vector(0.221123, 25.097106, 0), Vector(0.269799, 25.146541, 0), Vector(0.338508, 25.190807, 0), Vector(0.418036, 25.21675, 0), Vector(0.47407, 25.219654, 0), Vector(0.503005, 25.221154, 0)], [4, 1, 1, 1, 1, 1, 1, 1, 1, 1, 1, 1, 4], [0, 0.000068023, 0.000131315, 0.000190113, 0.000246084, 0.000297996, 0.000346429, 0.000392538, 0.000436486, 0.000518789, 0.000598535, 0.000679684, 0.000766331], False, 3, [1, 1, 1, 1, 1, 1, 1, 1, 1, 1, 1, 1, 1, 1, 1], False), False)
sketch8.addGeometry(Part.LineSegment(Vector(0.108974, 24.670072, 0), Vector(0.108974, 24.503205, 0)), False)
sketch8.addGeometry(Part.LineSegment(Vector(0.108974, 24.503205, 0), Vector(0.871795, 24.503205, 0)), False)
sketch8.addGeometry(Part.LineSegment(Vector(-0.474359, 24.503205, 0), Vector(-0.474359, 24.653245, 0)), False)
sketch8.addGeometry(Part.BSplineCurve([Vector(-0.96234, 25.445513, 0), Vector(-0.943849, 25.444987, 0), Vector(-0.907835, 25.443962, 0), Vector(-0.855198, 25.435592, 0), Vector(-0.806054, 25.420386, 0), Vector(-0.759163, 25.401219, 0), Vector(-0.716143, 25.374601, 0), Vector(-0.675875, 25.342874, 0), Vector(-0.638632, 25.305321, 0), Vector(-0.603779, 25.262215, 0), Vector(-0.572727, 25.211923, 0), Vector(-0.546409, 25.154099, 0), Vector(-0.523877, 25.089078, 0), Vector(-0.506162, 25.01646, 0), Vector(-0.491073, 24.936491, 0), Vector(-0.482076, 24.848548, 0), Vector(-0.47538, 24.753375, 0), Vector(-0.474707, 24.68738, 0), Vector(-0.474359, 24.653245, 0)], [4, 1, 1, 1, 1, 1, 1, 1, 1, 1, 1, 1, 1, 1, 1, 1, 4], [0, 0.00005546, 0.00010802, 0.00015926, 0.000209526, 0.000259547, 0.000310464, 0.000363015, 0.000417873, 0.000476437, 0.000539802, 0.000608096, 0.000682577, 0.000763849, 0.000852038, 0.000947599, 0.001049984], False, 3, [1, 1, 1, 1, 1, 1, 1, 1, 1, 1, 1, 1, 1, 1, 1, 1, 1, 1, 1], False), False)
sketch8.addGeometry(Part.BSplineCurve([Vector(-1.371795, 24.684095, 0), Vector(-1.371591, 24.719857, 0), Vector(-1.371198, 24.788614, 0), Vector(-1.366452, 24.887108, 0), Vector(-1.357898, 24.976664, 0), Vector(-1.347219, 25.057044, 0), Vector(-1.332751, 25.128372, 0), Vector(-1.314356, 25.190406, 0), Vector(-1.294119, 25.243997, 0), Vector(-1.269124, 25.288824, 0), Vector(-1.240036, 25.325446, 0), Vector(-1.210307, 25.358492, 0), Vector(-1.176012, 25.385436, 0), Vector(-1.138623, 25.406755, 0), Vector(-1.099069, 25.425207, 0), Vector(-1.055805, 25.436335, 0), Vector(-1.010113, 25.444808, 0), Vector(-0.978509, 25.445274, 0), Vector(-0.96234, 25.445513, 0)], [4, 1, 1, 1, 1, 1, 1, 1, 1, 1, 1, 1, 1, 1, 1, 1, 4], [0, 0.000107281, 0.000206261, 0.0002957, 0.000377105, 0.000449433, 0.000513769, 0.000571055, 0.000620973, 0.00066697, 0.000711118, 0.000754041, 0.00079709, 0.000840088, 0.000884486, 0.000930707, 0.00097913], False, 3, [1, 1, 1, 1, 1, 1, 1, 1, 1, 1, 1, 1, 1, 1, 1, 1, 1, 1, 1], False), False)
sketch8.addGeometry(Part.LineSegment(Vector(-1.371795, 24.684095, 0), Vector(-1.371795, 24.503205, 0)), False)
sketch8.addGeometry(Part.LineSegment(Vector(-1.371795, 24.503205, 0), Vector(-0.474359, 24.503205, 0)), False)
add_polygon(sketch8, [(1.5, 28.21859), (1.5, 27.590385), (-2, 27.590385), (-2, 29.205769), (-1.371795, 29.205769), (-1.371795, 28.21859)])
add_polygon(sketch8, [(1.5, 32.517308), (1.5, 30.632692), (-2, 30.632692), (-2, 32.517308), (-1.371795, 32.517308), (-1.371795, 31.260897), (-0.429487, 31.260897), (-0.429487, 32.517308), (0.198718, 32.517308), (0.198718, 31.260897), (0.871795, 31.260897), (0.871795, 32.517308)])
sketch8.addConstraint(Sketcher.Constraint("Block", 1))
sketch8.addConstraint(Sketcher.Constraint("Block", 2))
sketch8.addConstraint(Sketcher.Constraint("Block", 3))
sketch8.addConstraint(Sketcher.Constraint("Block", 4))
sketch8.addConstraint(Sketcher.Constraint("Block", 6))
sketch8.addConstraint(Sketcher.Constraint("Block", 7))
sketch8.addConstraint(Sketcher.Constraint("Block", 8))
sketch8.addConstraint(Sketcher.Constraint("Block", 9))
sketch8.addConstraint(Sketcher.Constraint("Block", 16))
sketch8.addConstraint(Sketcher.Constraint("Block", 17))
sketch8.addConstraint(Sketcher.Constraint("Block", 18))
sketch8.addConstraint(Sketcher.Constraint("Block", 19))
sketch8.addConstraint(Sketcher.Constraint("Block", 20))
sketch8.addConstraint(Sketcher.Constraint("Block", 23))
sketch8.addConstraint(Sketcher.Constraint("Block", 24))
sketch8.addConstraint(Sketcher.Constraint("Block", 28))
sketch8.addConstraint(Sketcher.Constraint("Block", 29))
sketch8.addConstraint(Sketcher.Constraint("Coincident", 0, 2, 1, 2))
sketch8.addConstraint(Sketcher.Constraint("Coincident", 4, 1, 5, 1))
sketch8.addConstraint(Sketcher.Constraint("Coincident", 5, 2, 6, 2))
sketch8.addConstraint(Sketcher.Constraint("Coincident", 9, 1, 0, 1))
sketch8.addConstraint(Sketcher.Constraint("Coincident", 14, 2, 15, 1))
sketch8.addConstraint(Sketcher.Constraint("Coincident", 15, 2, 16, 2))
sketch8.addConstraint(Sketcher.Constraint("Coincident", 20, 1, 21, 1))
sketch8.addConstraint(Sketcher.Constraint("Coincident", 21, 2, 14, 1))
sketch8.addConstraint(Sketcher.Constraint("Coincident", 22, 2, 23, 2))
sketch8.addConstraint(Sketcher.Constraint("Coincident", 24, 1, 25, 1))
sketch8.addConstraint(Sketcher.Constraint("Coincident", 25, 2, 26, 1))
sketch8.addConstraint(Sketcher.Constraint("Coincident", 26, 2, 22, 1))
sketch8.addConstraint(Sketcher.Constraint("Coincident", 27, 2, 28, 2))
sketch8.addConstraint(Sketcher.Constraint("Coincident", 29, 1, 30, 1))
sketch8.addConstraint(Sketcher.Constraint("Coincident", 30, 2, 31, 1))
sketch8.addConstraint(Sketcher.Constraint("Coincident", 31, 2, 27, 1))
sketch8.addConstraint(Sketcher.Constraint("Vertical", 10))
sketch8.addConstraint(Sketcher.Constraint("Horizontal", 11))
sketch8.addConstraint(Sketcher.Constraint("Vertical", 12))
sketch8.addConstraint(Sketcher.Constraint("Horizontal", 13))
sketch8.addConstraint(Sketcher.Constraint("Horizontal", 14))
sketch8.addConstraint(Sketcher.Constraint("Vertical", 15))
sketch8.addConstraint(Sketcher.Constraint("Vertical", 21))
sketch8.addConstraint(Sketcher.Constraint("Vertical", 22))
sketch8.addConstraint(Sketcher.Constraint("Vertical", 25))
sketch8.addConstraint(Sketcher.Constraint("Horizontal", 26))
sketch8.addConstraint(Sketcher.Constraint("Vertical", 27))
sketch8.addConstraint(Sketcher.Constraint("Vertical", 30))
sketch8.addConstraint(Sketcher.Constraint("Horizontal", 31))
sketch8.addConstraint(Sketcher.Constraint("Vertical", 32))
sketch8.addConstraint(Sketcher.Constraint("Horizontal", 33))
sketch8.addConstraint(Sketcher.Constraint("Vertical", 34))
sketch8.addConstraint(Sketcher.Constraint("Horizontal", 35))
sketch8.addConstraint(Sketcher.Constraint("Vertical", 36))
sketch8.addConstraint(Sketcher.Constraint("Horizontal", 37))
sketch8.addConstraint(Sketcher.Constraint("Vertical", 38))
sketch8.addConstraint(Sketcher.Constraint("Horizontal", 39))
sketch8.addConstraint(Sketcher.Constraint("Vertical", 40))
sketch8.addConstraint(Sketcher.Constraint("Horizontal", 41))
sketch8.addConstraint(Sketcher.Constraint("Vertical", 42))
sketch8.addConstraint(Sketcher.Constraint("Horizontal", 43))
sketch8.addConstraint(Sketcher.Constraint("Vertical", 44))
sketch8.addConstraint(Sketcher.Constraint("Horizontal", 45))
sketch8.addConstraint(Sketcher.Constraint("Vertical", 46))
sketch8.addConstraint(Sketcher.Constraint("Horizontal", 47))
sketch8.addConstraint(Sketcher.Constraint("Vertical", 48))
sketch8.addConstraint(Sketcher.Constraint("Horizontal", 49))
sketch8.addConstraint(Sketcher.Constraint("DistanceX", 11, 1, 11, 2, Q("3.5 mm")))
sketch8.addConstraint(Sketcher.Constraint("DistanceX", 33, 2, 33, 1, Q("3.5 mm")))
sketch8.addConstraint(Sketcher.Constraint("DistanceX", 39, 2, 39, 1, Q("3.5 mm")))
sketch8.addConstraint(Sketcher.Constraint("DistanceX", 10, 2, -1, 1, Q("2 mm")))
sketch8.addConstraint(Sketcher.Constraint("DistanceX", 33, 2, -1, 1, Q("2 mm")))
sketch8.addConstraint(Sketcher.Constraint("DistanceX", 39, 2, -1, 1, Q("2 mm")))
sketch8.addConstraint(Sketcher.Constraint("DistanceY", -1, 1, 14, 2, Q("23.875 mm")))
sketch8.addConstraint(Sketcher.Constraint("DistanceY", 27, 1, 27, 2, Q("0.15004 mm")))
sketch8.addConstraint(Sketcher.Constraint("DistanceY", 36, 2, 36, 1, Q("0.987179 mm")))
sketch8.addConstraint(Sketcher.Constraint("DistanceY", 42, 2, 42, 1, Q("1.25641 mm")))
sketch8.addConstraint(Sketcher.Constraint("DistanceY", 44, 1, 44, 2, Q("1.25641 mm")))
sketch8.addConstraint(Sketcher.Constraint("DistanceY", 46, 2, 46, 1, Q("1.25641 mm")))
sketch8.addConstraint(Sketcher.Constraint("DistanceY", 48, 1, 48, 2, Q("1.25641 mm")))
sketch8.addConstraint(Sketcher.Constraint("DistanceX", 35, 1, 35, 2, Q("0.628205 mm")))
sketch8.addConstraint(Sketcher.Constraint("DistanceX", 41, 1, 41, 2, Q("0.628205 mm")))
sketch8.addConstraint(Sketcher.Constraint("DistanceX", 43, 1, 43, 2, Q("0.942308 mm")))
sketch8.addConstraint(Sketcher.Constraint("DistanceX", 45, 1, 45, 2, Q("0.628205 mm")))
sketch8.addConstraint(Sketcher.Constraint("DistanceX", 47, 1, 47, 2, Q("0.673077 mm")))
sketch8.addConstraint(Sketcher.Constraint("DistanceY", 10, 1, 10, 2, Q("0.628205 mm")))
sketch8.addConstraint(Sketcher.Constraint("DistanceY", 22, 1, 22, 2, Q("0.197015 mm")))
sketch8.addConstraint(Sketcher.Constraint("DistanceY", 32, 2, 32, 1, Q("0.628205 mm")))
sketch8.addConstraint(Sketcher.Constraint("DistanceY", 38, 2, 38, 1, Q("1.884615 mm")))
sketch8.addConstraint(Sketcher.Constraint("DistanceY", -1, 1, 12, 2, Q("21.550641 mm")))
sketch8.addConstraint(Sketcher.Constraint("DistanceY", -1, 1, 34, 2, Q("29.205769 mm")))
sketch8.addConstraint(Sketcher.Constraint("DistanceY", 34, 2, 40, 2, Q("3.311538 mm")))
sketch8.setExpression("Constraints[86]", "Params.sketch8_width")
sketch8.setExpression("Constraints[87]", "Params.sketch8_width2")
sketch8.setExpression("Constraints[88]", "Params.sketch8_width3")
pocket7 = doc.addObject("PartDesign::Pocket", "Pocket006")
body.addObject(pocket7)
pocket7.Profile = sketch8
pocket7.setExpression("Length", "Params.pocket7_length")
pocket7.Reversed = True

doc.recompute()
